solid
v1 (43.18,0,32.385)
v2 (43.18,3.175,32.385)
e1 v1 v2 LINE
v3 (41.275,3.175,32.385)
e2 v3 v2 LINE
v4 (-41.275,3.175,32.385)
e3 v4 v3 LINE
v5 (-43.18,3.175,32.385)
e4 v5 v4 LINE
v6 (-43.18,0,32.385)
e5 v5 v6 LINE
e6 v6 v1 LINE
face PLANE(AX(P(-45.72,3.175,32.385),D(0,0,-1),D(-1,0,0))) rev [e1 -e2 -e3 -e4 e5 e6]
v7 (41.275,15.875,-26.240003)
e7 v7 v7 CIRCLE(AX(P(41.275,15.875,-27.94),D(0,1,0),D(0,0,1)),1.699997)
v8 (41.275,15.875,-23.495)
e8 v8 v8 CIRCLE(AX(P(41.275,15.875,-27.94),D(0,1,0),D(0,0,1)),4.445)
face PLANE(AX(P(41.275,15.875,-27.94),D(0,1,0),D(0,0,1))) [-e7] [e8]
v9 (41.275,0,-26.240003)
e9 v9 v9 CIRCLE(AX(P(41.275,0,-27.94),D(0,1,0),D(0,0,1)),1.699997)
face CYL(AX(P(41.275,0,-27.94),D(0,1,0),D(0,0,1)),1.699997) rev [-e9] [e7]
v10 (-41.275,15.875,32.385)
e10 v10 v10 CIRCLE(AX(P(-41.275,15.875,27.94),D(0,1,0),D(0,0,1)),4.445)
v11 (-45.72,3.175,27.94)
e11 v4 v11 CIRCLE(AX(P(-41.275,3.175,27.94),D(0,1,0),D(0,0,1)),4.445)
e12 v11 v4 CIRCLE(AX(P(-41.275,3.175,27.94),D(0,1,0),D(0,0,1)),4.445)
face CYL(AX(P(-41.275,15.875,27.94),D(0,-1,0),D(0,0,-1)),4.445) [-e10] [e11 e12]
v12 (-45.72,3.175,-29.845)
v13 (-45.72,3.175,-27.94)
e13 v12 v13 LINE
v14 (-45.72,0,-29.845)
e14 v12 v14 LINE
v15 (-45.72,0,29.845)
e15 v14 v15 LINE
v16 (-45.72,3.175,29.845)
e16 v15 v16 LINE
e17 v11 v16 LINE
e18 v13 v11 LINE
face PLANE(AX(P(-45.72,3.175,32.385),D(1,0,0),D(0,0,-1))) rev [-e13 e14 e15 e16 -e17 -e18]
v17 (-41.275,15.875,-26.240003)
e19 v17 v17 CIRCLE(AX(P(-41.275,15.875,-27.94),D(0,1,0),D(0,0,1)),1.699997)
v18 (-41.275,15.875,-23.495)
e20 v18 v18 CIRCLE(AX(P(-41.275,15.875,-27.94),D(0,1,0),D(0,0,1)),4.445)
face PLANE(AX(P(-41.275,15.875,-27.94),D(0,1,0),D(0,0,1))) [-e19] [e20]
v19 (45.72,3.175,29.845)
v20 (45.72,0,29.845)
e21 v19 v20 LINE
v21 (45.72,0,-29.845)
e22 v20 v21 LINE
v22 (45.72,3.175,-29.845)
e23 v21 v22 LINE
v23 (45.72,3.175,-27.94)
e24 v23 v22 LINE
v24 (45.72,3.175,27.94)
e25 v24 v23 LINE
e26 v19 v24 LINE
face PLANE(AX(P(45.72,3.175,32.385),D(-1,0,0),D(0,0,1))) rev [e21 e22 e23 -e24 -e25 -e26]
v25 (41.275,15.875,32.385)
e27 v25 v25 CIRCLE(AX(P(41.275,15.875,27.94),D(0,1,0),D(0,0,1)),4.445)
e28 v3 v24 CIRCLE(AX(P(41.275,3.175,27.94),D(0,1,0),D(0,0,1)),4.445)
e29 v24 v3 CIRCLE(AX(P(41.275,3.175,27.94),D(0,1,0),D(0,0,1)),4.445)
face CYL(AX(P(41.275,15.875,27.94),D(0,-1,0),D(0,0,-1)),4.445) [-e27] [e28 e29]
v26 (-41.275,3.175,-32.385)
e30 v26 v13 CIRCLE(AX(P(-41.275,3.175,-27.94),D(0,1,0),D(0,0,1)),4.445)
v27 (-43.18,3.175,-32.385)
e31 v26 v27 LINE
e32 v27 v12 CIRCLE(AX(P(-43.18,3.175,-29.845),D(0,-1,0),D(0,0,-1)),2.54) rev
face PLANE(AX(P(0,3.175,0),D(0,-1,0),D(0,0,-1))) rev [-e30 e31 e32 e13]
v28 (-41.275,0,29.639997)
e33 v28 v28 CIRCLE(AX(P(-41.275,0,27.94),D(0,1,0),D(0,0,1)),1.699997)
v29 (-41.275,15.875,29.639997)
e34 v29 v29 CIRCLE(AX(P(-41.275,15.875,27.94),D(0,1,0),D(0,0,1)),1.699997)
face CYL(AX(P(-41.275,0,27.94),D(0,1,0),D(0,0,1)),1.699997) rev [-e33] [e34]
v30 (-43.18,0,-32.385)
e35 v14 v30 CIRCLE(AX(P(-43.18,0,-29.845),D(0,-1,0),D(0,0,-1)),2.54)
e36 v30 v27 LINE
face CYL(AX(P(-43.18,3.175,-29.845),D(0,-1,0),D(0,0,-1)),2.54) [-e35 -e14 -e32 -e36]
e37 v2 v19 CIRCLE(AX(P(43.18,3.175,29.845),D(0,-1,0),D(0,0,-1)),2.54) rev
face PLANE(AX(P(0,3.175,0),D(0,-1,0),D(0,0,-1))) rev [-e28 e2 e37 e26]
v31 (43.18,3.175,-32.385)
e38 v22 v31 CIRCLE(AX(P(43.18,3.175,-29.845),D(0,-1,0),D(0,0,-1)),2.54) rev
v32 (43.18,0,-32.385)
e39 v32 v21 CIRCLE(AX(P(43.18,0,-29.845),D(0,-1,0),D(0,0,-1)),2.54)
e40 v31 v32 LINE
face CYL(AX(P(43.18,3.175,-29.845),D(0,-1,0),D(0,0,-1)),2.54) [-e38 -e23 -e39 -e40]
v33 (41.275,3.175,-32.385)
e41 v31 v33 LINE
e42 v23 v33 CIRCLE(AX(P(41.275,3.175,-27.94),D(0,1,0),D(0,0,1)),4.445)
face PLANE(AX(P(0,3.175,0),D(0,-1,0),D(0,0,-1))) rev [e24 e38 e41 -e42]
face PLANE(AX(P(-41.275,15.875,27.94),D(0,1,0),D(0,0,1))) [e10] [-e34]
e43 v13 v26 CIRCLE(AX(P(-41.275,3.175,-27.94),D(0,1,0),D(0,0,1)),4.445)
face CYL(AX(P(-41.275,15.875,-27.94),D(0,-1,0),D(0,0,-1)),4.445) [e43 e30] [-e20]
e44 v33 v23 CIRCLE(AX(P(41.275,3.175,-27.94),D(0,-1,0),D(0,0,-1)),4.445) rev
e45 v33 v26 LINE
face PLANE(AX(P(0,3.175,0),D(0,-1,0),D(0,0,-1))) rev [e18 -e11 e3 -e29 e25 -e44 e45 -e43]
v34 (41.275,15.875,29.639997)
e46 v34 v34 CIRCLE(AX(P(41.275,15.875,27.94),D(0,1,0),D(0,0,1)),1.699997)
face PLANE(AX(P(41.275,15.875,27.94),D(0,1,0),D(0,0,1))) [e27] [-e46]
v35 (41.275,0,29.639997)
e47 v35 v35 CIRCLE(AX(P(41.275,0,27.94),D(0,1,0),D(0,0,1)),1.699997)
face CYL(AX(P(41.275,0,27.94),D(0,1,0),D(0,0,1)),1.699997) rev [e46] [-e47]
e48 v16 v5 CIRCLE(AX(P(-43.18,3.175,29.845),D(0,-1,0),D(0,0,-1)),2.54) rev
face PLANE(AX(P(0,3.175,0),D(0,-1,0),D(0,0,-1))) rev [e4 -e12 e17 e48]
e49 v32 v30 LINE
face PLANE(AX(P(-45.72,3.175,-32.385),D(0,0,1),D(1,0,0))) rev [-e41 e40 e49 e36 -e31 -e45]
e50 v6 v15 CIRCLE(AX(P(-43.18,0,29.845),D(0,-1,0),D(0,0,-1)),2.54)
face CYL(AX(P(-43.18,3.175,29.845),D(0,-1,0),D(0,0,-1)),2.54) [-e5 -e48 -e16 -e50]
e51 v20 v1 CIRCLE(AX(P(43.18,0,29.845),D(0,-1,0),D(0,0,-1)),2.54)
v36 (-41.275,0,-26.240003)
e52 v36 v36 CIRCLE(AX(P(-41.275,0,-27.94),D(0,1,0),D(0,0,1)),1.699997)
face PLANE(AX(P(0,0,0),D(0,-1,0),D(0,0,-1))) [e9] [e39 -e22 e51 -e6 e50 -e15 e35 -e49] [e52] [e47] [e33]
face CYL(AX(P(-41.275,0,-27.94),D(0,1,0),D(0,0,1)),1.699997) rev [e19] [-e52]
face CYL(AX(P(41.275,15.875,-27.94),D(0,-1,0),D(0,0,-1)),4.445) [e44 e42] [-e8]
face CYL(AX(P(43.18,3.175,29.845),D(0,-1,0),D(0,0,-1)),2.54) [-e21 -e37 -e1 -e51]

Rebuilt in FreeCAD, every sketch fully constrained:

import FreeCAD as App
import Part
import Sketcher
Q = App.Units.Quantity


def edges_at(feature, points):
    """Names of the edges that pass closest to the given points."""
    edges = feature.Shape.Edges
    near = lambda p: min(range(len(edges)), key=lambda i: edges[i].distToShape(Part.Vertex(*p))[0])
    return sorted({f"Edge{near(p) + 1}" for p in points})


def add_polygon(sketch, points):
    """Adds a closed chain of lines whose ends are joined by coincident constraints."""
    first, n = sketch.GeometryCount, len(points)
    for a, b in zip(points, points[1:] + points[:1]):
        sketch.addGeometry(Part.LineSegment(App.Vector(*a, 0), App.Vector(*b, 0)), False)
    for i in range(n):
        sketch.addConstraint(Sketcher.Constraint("Coincident", first + i, 2, first + (i + 1) % n, 1))

doc = App.newDocument("Part")
params = doc.addObject("Spreadsheet::Sheet", "Params")
for row, (alias, value) in enumerate([
    ("sketch1_width", "3.6 in"),
    ("sketch1_height", "2.55 in"),
    ("pad1_length", "0.125 in"),
    ("sketch2_diameter", "0.35 in"),
    ("pad2_length", "0.5 in"),
    ("fillet_radius", "0.1 in"),
], start=1):
    params.set(f"A{row}", alias)
    params.set(f"B{row}", "=" + value)
    params.setAlias(f"B{row}", alias)

body = doc.addObject("PartDesign::Body", "Body")

# Sketch on XZ plane
sketch1 = doc.addObject("Sketcher::SketchObject", "Sketch")
body.addObject(sketch1)
sketch1.AttachmentSupport = (doc.XZ_Plane, [""])
sketch1.MapMode = "FlatFace"
add_polygon(sketch1, [(-45.72, -32.385), (-45.72, 32.385), (45.72, 32.385), (45.72, -32.385)])  # lines 0-3
sketch1.addConstraint([
    Sketcher.Constraint("Vertical", 0),
    Sketcher.Constraint("Horizontal", 1),
    Sketcher.Constraint("Vertical", 2),
    Sketcher.Constraint("Horizontal", 3),
    Sketcher.Constraint("Symmetric", 0, 2, 2, 2, -1, 1),
    Sketcher.Constraint("DistanceX", 1, 1, 1, 2, Q("3.6 in")),
    Sketcher.Constraint("DistanceY", 0, 1, 0, 2, Q("2.55 in")),
])
sketch1.setExpression("Constraints[9]", "Params.sketch1_width")
sketch1.setExpression("Constraints[10]", "Params.sketch1_height")
pad1 = doc.addObject("PartDesign::Pad", "Pad")
body.addObject(pad1)
pad1.Profile = sketch1
pad1.setExpression("Length", "Params.pad1_length")
pad1.Reversed = True

# Sketch on XZ plane
sketch2 = doc.addObject("Sketcher::SketchObject", "Sketch001")
body.addObject(sketch2)
sketch2.AttachmentSupport = (doc.XZ_Plane, [""])
sketch2.MapMode = "FlatFace"
sketch2.AttachmentOffset = App.Placement(App.Vector(0, 0, -0.125 * 25.4), App.Rotation())
sketch2.addGeometry([
    Part.Circle(App.Vector(-41.275, -27.94, 0), App.Vector(0, 0, 1), 4.445),
    Part.Circle(App.Vector(41.275, -27.94, 0), App.Vector(0, 0, 1), 4.445),
    Part.Circle(App.Vector(41.275, 27.94, 0), App.Vector(0, 0, 1), 4.445),
    Part.Circle(App.Vector(-41.275, 27.94, 0), App.Vector(0, 0, 1), 4.445),
], False)
sketch2.addConstraint([
    Sketcher.Constraint("Equal", 0, 1),
    Sketcher.Constraint("Equal", 1, 2),
    Sketcher.Constraint("Equal", 2, 3),
    Sketcher.Constraint("Symmetric", 0, 3, 2, 3, -1, 1),
    Sketcher.Constraint("Symmetric", 1, 3, 3, 3, -1, 1),
    Sketcher.Constraint("Symmetric", 0, 3, 1, 3, -2),
    Sketcher.Constraint("Diameter", 0, Q("0.35 in")),
    Sketcher.Constraint("DistanceY", 0, 3, -1, 1, Q("1.1 in")),
    Sketcher.Constraint("DistanceX", 0, 3, 1, 3, Q("3.25 in")),
])
sketch2.setExpression("Constraints[6]", "Params.sketch2_diameter")
pad2 = doc.addObject("PartDesign::Pad", "Pad001")
body.addObject(pad2)
pad2.Profile = sketch2
pad2.setExpression("Length", "Params.pad2_length")
pad2.Reversed = True

# Sketch on XZ plane
sketch3 = doc.addObject("Sketcher::SketchObject", "Sketch002")
body.addObject(sketch3)
sketch3.AttachmentSupport = (doc.XZ_Plane, [""])
sketch3.MapMode = "FlatFace"
sketch3.AttachmentOffset = App.Placement(App.Vector(0, 0, -0.625 * 25.4), App.Rotation())
sketch3.addGeometry([
    Part.Circle(App.Vector(-41.275, -27.94, 0), App.Vector(0, 0, 1), 1.699997),
    Part.Circle(App.Vector(41.275, -27.94, 0), App.Vector(0, 0, 1), 1.699997),
    Part.Circle(App.Vector(41.275, 27.94, 0), App.Vector(0, 0, 1), 1.699997),
    Part.Circle(App.Vector(-41.275, 27.94, 0), App.Vector(0, 0, 1), 1.699997),
], False)
sketch3.addConstraint([
    Sketcher.Constraint("Equal", 0, 1),
    Sketcher.Constraint("Equal", 1, 2),
    Sketcher.Constraint("Equal", 2, 3),
    Sketcher.Constraint("Symmetric", 0, 3, 2, 3, -1, 1),
    Sketcher.Constraint("Symmetric", 1, 3, 3, 3, -1, 1),
    Sketcher.Constraint("Symmetric", 0, 3, 1, 3, -2),
    Sketcher.Constraint("DistanceY", 0, 3, -1, 1, Q("1.1 in")),
    Sketcher.Constraint("DistanceX", 0, 3, 1, 3, Q("3.25 in")),
    Sketcher.Constraint("Diameter", 0, Q("3.399993 mm")),
])
pocket1 = doc.addObject("PartDesign::Pocket", "Pocket")
body.addObject(pocket1)
pocket1.Profile = sketch3
pocket1.Type = "ThroughAll"
pocket1.Reversed = True
doc.recompute()

fillet = doc.addObject("PartDesign::Fillet", "Fillet")
body.addObject(fillet)
fillet.Base = (pocket1, edges_at(pocket1, [
    (45.72, 1.587, 32.385),
    (-45.72, 1.587, 32.385),
    (-45.72, 1.587, -32.385),
    (45.72, 1.587, -32.385),
]))
fillet.setExpression("Radius", "Params.fillet_radius")

doc.recompute()
